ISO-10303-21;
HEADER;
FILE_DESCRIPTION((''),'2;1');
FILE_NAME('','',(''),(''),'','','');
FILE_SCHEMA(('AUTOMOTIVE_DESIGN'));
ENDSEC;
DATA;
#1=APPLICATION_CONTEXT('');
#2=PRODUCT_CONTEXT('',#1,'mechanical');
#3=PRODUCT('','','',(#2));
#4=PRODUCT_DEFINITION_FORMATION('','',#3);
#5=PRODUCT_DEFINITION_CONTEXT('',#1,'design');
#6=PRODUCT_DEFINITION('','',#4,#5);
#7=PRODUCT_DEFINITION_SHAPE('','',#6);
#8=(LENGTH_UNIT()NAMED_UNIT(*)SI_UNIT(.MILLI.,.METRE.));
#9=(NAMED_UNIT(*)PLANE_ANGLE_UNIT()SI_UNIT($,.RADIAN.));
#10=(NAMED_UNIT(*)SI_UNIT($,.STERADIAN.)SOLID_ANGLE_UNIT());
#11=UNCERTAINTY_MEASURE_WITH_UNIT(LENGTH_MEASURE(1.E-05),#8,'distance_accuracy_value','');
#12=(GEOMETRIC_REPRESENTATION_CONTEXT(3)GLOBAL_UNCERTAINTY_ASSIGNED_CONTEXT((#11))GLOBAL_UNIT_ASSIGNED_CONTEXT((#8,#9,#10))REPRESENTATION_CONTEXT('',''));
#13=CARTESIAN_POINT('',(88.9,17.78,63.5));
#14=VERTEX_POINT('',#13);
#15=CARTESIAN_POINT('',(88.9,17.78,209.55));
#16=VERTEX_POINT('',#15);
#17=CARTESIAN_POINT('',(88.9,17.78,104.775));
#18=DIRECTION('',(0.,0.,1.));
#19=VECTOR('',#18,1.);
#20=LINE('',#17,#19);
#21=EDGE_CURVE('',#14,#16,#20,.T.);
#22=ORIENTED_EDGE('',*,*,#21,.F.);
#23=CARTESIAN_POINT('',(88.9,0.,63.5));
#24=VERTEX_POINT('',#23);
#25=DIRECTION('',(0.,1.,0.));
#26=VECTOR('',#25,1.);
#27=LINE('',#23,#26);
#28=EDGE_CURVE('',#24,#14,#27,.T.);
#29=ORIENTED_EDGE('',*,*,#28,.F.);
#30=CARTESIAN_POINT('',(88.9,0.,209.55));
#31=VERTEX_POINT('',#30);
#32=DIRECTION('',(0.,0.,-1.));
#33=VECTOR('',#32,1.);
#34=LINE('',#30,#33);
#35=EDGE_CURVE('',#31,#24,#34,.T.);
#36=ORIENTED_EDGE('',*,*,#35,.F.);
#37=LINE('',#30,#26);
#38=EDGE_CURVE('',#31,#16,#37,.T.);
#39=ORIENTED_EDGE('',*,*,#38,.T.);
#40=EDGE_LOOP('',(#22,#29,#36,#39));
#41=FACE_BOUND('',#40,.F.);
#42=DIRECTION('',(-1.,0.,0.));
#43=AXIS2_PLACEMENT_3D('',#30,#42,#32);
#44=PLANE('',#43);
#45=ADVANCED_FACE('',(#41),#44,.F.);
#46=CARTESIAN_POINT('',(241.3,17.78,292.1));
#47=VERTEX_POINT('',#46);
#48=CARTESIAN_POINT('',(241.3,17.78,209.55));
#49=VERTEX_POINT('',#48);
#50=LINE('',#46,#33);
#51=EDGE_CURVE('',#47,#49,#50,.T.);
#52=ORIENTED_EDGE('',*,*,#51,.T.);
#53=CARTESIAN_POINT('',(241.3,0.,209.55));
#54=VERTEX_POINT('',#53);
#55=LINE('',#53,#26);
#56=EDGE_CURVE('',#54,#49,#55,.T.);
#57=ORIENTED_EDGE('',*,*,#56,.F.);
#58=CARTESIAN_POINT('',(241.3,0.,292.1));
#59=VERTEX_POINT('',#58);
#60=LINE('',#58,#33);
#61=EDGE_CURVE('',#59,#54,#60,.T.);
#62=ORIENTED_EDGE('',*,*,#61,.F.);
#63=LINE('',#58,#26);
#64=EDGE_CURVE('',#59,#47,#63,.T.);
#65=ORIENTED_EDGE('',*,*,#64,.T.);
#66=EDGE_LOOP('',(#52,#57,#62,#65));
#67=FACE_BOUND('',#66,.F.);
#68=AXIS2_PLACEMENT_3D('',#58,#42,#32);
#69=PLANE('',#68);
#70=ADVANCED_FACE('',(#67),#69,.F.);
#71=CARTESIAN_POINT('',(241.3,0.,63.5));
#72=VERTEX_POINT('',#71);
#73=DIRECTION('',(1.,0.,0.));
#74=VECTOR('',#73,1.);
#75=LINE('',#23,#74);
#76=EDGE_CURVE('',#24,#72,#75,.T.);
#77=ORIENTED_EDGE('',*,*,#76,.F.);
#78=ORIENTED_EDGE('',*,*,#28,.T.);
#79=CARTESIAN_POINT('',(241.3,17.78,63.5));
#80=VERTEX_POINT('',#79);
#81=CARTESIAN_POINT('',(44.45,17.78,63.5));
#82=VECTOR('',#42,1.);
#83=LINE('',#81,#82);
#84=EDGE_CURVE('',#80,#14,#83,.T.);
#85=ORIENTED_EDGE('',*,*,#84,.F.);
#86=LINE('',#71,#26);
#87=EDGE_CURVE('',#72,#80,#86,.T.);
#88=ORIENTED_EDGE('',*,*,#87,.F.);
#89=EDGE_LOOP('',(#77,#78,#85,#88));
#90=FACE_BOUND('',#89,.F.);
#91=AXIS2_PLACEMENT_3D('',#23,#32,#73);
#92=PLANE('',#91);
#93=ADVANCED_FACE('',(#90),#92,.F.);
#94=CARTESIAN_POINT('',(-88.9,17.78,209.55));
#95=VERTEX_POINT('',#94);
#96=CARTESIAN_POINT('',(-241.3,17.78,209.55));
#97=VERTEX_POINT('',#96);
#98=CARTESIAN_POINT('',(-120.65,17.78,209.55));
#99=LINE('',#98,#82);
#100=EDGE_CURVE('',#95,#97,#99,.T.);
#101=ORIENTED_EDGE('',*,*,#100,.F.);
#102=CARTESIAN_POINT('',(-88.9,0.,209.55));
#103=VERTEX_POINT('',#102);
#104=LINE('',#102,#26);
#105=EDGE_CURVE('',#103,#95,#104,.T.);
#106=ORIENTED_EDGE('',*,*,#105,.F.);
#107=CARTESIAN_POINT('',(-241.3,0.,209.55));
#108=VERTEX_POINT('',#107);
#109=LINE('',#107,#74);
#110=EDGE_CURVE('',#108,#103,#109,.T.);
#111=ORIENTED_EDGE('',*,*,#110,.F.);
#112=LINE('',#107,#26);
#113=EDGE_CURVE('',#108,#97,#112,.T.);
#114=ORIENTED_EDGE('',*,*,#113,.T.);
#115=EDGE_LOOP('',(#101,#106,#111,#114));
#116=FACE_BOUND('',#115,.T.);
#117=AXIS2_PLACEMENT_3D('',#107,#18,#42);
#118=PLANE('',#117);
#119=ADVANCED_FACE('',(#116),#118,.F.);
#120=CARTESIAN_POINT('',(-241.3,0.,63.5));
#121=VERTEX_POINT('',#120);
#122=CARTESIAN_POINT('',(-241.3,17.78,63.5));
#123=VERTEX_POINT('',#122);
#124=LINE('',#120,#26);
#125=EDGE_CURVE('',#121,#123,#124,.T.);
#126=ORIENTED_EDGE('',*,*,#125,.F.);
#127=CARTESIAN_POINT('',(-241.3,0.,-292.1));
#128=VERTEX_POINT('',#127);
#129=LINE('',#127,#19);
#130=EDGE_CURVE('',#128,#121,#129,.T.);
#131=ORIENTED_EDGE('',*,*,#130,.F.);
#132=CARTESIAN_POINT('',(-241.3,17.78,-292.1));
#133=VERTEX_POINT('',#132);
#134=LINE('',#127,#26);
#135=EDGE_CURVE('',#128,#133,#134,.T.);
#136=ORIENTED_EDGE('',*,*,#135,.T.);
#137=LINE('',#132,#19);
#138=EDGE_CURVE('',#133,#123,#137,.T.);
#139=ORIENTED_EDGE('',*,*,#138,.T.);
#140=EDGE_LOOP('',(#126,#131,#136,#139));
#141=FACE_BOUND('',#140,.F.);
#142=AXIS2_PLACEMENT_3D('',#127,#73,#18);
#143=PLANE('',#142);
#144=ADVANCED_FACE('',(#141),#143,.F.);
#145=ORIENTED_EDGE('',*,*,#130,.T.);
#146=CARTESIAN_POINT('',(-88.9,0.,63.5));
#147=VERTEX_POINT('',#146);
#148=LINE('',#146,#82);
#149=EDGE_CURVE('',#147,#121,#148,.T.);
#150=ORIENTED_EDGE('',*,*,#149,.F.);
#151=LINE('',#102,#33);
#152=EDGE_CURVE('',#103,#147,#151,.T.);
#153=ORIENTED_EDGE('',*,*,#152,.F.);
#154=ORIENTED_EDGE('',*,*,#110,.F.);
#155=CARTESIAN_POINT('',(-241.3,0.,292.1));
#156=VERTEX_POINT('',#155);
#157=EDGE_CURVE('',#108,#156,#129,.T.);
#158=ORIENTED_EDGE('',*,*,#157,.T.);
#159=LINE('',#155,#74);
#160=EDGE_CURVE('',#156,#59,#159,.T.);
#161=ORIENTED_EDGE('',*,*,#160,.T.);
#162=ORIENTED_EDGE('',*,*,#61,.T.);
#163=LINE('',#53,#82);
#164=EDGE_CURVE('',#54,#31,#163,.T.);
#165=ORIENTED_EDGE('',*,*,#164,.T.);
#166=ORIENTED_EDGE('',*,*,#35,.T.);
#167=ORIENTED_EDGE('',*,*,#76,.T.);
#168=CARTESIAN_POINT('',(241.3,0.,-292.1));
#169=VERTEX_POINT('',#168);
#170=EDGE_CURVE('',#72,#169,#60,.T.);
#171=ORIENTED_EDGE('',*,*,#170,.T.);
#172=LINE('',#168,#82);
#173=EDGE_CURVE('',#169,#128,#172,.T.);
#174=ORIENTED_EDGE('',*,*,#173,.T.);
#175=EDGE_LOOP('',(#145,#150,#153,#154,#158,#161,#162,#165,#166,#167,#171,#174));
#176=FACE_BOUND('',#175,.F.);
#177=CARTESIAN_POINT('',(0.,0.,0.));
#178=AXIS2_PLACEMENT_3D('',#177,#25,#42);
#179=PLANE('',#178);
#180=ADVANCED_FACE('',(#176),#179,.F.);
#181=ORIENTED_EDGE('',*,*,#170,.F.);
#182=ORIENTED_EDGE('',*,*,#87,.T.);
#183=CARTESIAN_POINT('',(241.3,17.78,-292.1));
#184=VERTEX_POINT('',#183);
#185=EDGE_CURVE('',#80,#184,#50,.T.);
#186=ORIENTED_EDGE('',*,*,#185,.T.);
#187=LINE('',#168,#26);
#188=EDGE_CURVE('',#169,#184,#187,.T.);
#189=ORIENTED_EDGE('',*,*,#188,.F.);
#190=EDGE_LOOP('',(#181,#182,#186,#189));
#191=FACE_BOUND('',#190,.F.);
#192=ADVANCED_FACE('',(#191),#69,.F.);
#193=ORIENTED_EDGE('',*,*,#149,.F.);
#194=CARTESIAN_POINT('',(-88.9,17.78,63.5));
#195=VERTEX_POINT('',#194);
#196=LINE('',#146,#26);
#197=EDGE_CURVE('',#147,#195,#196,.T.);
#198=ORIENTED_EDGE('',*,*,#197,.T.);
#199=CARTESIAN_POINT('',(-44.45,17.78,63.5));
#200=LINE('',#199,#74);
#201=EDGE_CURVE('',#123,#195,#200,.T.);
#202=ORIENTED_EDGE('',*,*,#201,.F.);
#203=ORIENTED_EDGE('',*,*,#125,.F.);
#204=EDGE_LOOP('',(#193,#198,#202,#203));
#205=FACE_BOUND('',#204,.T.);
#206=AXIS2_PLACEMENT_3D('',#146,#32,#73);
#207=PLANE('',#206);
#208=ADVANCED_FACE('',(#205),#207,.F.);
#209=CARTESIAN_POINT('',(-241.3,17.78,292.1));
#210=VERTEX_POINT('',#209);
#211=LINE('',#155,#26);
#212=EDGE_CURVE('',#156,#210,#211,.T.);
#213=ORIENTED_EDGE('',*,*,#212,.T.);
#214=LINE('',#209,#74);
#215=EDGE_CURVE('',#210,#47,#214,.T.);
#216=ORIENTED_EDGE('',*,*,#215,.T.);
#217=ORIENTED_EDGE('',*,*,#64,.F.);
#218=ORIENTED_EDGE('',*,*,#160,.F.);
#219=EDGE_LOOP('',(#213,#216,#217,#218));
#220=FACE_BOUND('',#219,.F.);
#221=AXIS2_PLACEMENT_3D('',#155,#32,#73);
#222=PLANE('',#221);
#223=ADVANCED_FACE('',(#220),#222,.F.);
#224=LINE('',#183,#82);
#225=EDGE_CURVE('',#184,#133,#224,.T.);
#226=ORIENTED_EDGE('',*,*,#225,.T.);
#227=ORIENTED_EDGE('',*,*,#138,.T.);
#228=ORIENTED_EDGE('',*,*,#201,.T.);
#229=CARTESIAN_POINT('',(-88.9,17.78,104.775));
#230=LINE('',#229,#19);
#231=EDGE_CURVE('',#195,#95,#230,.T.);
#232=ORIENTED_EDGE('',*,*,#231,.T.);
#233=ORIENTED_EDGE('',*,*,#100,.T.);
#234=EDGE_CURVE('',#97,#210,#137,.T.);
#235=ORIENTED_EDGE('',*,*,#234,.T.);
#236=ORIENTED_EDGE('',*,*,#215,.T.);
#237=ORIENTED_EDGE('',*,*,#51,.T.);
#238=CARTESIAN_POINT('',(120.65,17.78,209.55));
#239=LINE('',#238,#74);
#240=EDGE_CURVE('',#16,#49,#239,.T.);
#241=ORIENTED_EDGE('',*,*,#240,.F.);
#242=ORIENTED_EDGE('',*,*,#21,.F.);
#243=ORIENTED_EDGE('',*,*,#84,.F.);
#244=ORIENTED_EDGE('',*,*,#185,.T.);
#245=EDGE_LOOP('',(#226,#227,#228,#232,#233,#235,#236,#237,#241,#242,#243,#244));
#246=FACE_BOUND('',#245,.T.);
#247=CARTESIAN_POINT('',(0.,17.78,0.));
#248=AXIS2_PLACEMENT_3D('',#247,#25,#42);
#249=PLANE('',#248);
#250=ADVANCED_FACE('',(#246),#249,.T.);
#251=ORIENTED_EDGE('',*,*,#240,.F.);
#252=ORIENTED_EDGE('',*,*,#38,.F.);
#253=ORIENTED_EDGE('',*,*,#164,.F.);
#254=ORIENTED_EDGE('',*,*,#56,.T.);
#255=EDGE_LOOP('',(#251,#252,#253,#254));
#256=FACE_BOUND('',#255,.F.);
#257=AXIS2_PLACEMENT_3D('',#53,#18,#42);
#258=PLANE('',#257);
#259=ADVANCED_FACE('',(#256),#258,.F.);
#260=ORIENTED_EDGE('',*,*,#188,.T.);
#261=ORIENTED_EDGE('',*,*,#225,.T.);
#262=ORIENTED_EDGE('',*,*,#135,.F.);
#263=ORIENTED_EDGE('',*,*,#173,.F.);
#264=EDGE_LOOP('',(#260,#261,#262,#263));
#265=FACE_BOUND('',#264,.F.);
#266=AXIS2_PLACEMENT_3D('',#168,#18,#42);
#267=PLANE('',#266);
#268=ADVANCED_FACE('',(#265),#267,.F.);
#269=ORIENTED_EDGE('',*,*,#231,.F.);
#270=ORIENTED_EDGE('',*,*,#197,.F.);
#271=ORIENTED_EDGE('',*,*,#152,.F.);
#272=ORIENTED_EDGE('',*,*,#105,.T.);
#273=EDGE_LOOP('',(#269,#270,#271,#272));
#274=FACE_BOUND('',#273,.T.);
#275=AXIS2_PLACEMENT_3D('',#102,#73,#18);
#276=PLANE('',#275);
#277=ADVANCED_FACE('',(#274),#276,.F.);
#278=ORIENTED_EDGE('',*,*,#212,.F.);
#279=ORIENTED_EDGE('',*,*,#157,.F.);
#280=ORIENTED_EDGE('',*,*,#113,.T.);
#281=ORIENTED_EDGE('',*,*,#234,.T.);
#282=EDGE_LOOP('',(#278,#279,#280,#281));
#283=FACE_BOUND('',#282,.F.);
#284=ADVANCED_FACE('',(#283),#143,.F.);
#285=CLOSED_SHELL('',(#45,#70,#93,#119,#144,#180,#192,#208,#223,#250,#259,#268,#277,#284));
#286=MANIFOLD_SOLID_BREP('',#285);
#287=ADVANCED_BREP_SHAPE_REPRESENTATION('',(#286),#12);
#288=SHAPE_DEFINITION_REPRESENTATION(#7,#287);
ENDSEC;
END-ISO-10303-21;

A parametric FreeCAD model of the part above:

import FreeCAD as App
import Part
import Sketcher

V = App.Vector
Q = App.Units.Quantity

doc = App.newDocument("Part")
params = doc.addObject("Spreadsheet::Sheet", "Params")
for row, (alias, value) in enumerate([
    ("sketch1_width", "19 in"),
    ("sketch1_height", "23 in"),
    ("pad1_length", "0.7 in"),
    ("sketch2_width", "6 in"),
    ("sketch2_height", "5.75 in"),
], start=1):
    params.set(f"A{row}", alias)
    params.set(f"B{row}", "=" + value)
    params.setAlias(f"B{row}", alias)

body = doc.addObject("PartDesign::Body", "Body")

sketch1 = doc.addObject("Sketcher::SketchObject", "Sketch")
body.addObject(sketch1)
sketch1.AttachmentSupport = (doc.XZ_Plane, [""])
sketch1.MapMode = "FlatFace"
sketch1.addGeometry([
    Part.LineSegment(V(-241.3, 292.1, 0), V(241.3, 292.1, 0)),
    Part.LineSegment(V(241.3, 292.1, 0), V(241.3, -292.1, 0)),
    Part.LineSegment(V(241.3, -292.1, 0), V(-241.3, -292.1, 0)),
    Part.LineSegment(V(-241.3, -292.1, 0), V(-241.3, 292.1, 0)),
], False)
sketch1.addConstraint([
    Sketcher.Constraint("Coincident", 0, 2, 1, 1),
    Sketcher.Constraint("Coincident", 1, 2, 2, 1),
    Sketcher.Constraint("Coincident", 2, 2, 3, 1),
    Sketcher.Constraint("Coincident", 3, 2, 0, 1),
    Sketcher.Constraint("Horizontal", 0),
    Sketcher.Constraint("Vertical", 1),
    Sketcher.Constraint("Horizontal", 2),
    Sketcher.Constraint("Vertical", 3),
    Sketcher.Constraint("Symmetric", 0, 2, 2, 2, -1, 1),
    Sketcher.Constraint("DistanceX", 0, 1, 0, 2, Q("19 in")),
    Sketcher.Constraint("DistanceY", 1, 2, 1, 1, Q("23 in")),
])
sketch1.setExpression("Constraints[9]", "Params.sketch1_width")
sketch1.setExpression("Constraints[10]", "Params.sketch1_height")
pad1 = doc.addObject("PartDesign::Pad", "Pad")
body.addObject(pad1)
pad1.Profile = sketch1
pad1.setExpression("Length", "Params.pad1_length")
pad1.Reversed = True

sketch2 = doc.addObject("Sketcher::SketchObject", "Sketch001")
body.addObject(sketch2)
sketch2.AttachmentSupport = (doc.XZ_Plane, [""])
sketch2.MapMode = "FlatFace"
sketch2.addGeometry([
    Part.LineSegment(V(241.3, 63.5, 0), V(241.3, 209.55, 0)),
    Part.LineSegment(V(241.3, 209.55, 0), V(88.9, 209.55, 0)),
    Part.LineSegment(V(88.9, 209.55, 0), V(88.9, 63.5, 0)),
    Part.LineSegment(V(88.9, 63.5, 0), V(241.3, 63.5, 0)),
], False)
sketch2.addConstraint([
    Sketcher.Constraint("Coincident", 0, 2, 1, 1),
    Sketcher.Constraint("Coincident", 1, 2, 2, 1),
    Sketcher.Constraint("Coincident", 2, 2, 3, 1),
    Sketcher.Constraint("Coincident", 3, 2, 0, 1),
    Sketcher.Constraint("Vertical", 0),
    Sketcher.Constraint("Horizontal", 1),
    Sketcher.Constraint("Vertical", 2),
    Sketcher.Constraint("Horizontal", 3),
    Sketcher.Constraint("DistanceX", 1, 2, 1, 1, Q("6 in")),
    Sketcher.Constraint("DistanceY", 0, 1, 0, 2, Q("5.75 in")),
    Sketcher.Constraint("DistanceX", -1, 1, 0, 2, Q("9.5 in")),
    Sketcher.Constraint("DistanceY", -1, 1, 2, 2, Q("2.5 in")),
])
sketch2.setExpression("Constraints[8]", "Params.sketch2_width")
sketch2.setExpression("Constraints[9]", "Params.sketch2_height")
pocket1 = doc.addObject("PartDesign::Pocket", "Pocket")
body.addObject(pocket1)
pocket1.Profile = sketch2
pocket1.Type = "ThroughAll"
doc.recompute()

mirrored = doc.addObject("PartDesign::Mirrored", "Mirrored")
body.addObject(mirrored)
mirrored.Originals = [pocket1]
mirrored.MirrorPlane = (doc.YZ_Plane, [""])
body.Tip = mirrored

doc.recompute()
